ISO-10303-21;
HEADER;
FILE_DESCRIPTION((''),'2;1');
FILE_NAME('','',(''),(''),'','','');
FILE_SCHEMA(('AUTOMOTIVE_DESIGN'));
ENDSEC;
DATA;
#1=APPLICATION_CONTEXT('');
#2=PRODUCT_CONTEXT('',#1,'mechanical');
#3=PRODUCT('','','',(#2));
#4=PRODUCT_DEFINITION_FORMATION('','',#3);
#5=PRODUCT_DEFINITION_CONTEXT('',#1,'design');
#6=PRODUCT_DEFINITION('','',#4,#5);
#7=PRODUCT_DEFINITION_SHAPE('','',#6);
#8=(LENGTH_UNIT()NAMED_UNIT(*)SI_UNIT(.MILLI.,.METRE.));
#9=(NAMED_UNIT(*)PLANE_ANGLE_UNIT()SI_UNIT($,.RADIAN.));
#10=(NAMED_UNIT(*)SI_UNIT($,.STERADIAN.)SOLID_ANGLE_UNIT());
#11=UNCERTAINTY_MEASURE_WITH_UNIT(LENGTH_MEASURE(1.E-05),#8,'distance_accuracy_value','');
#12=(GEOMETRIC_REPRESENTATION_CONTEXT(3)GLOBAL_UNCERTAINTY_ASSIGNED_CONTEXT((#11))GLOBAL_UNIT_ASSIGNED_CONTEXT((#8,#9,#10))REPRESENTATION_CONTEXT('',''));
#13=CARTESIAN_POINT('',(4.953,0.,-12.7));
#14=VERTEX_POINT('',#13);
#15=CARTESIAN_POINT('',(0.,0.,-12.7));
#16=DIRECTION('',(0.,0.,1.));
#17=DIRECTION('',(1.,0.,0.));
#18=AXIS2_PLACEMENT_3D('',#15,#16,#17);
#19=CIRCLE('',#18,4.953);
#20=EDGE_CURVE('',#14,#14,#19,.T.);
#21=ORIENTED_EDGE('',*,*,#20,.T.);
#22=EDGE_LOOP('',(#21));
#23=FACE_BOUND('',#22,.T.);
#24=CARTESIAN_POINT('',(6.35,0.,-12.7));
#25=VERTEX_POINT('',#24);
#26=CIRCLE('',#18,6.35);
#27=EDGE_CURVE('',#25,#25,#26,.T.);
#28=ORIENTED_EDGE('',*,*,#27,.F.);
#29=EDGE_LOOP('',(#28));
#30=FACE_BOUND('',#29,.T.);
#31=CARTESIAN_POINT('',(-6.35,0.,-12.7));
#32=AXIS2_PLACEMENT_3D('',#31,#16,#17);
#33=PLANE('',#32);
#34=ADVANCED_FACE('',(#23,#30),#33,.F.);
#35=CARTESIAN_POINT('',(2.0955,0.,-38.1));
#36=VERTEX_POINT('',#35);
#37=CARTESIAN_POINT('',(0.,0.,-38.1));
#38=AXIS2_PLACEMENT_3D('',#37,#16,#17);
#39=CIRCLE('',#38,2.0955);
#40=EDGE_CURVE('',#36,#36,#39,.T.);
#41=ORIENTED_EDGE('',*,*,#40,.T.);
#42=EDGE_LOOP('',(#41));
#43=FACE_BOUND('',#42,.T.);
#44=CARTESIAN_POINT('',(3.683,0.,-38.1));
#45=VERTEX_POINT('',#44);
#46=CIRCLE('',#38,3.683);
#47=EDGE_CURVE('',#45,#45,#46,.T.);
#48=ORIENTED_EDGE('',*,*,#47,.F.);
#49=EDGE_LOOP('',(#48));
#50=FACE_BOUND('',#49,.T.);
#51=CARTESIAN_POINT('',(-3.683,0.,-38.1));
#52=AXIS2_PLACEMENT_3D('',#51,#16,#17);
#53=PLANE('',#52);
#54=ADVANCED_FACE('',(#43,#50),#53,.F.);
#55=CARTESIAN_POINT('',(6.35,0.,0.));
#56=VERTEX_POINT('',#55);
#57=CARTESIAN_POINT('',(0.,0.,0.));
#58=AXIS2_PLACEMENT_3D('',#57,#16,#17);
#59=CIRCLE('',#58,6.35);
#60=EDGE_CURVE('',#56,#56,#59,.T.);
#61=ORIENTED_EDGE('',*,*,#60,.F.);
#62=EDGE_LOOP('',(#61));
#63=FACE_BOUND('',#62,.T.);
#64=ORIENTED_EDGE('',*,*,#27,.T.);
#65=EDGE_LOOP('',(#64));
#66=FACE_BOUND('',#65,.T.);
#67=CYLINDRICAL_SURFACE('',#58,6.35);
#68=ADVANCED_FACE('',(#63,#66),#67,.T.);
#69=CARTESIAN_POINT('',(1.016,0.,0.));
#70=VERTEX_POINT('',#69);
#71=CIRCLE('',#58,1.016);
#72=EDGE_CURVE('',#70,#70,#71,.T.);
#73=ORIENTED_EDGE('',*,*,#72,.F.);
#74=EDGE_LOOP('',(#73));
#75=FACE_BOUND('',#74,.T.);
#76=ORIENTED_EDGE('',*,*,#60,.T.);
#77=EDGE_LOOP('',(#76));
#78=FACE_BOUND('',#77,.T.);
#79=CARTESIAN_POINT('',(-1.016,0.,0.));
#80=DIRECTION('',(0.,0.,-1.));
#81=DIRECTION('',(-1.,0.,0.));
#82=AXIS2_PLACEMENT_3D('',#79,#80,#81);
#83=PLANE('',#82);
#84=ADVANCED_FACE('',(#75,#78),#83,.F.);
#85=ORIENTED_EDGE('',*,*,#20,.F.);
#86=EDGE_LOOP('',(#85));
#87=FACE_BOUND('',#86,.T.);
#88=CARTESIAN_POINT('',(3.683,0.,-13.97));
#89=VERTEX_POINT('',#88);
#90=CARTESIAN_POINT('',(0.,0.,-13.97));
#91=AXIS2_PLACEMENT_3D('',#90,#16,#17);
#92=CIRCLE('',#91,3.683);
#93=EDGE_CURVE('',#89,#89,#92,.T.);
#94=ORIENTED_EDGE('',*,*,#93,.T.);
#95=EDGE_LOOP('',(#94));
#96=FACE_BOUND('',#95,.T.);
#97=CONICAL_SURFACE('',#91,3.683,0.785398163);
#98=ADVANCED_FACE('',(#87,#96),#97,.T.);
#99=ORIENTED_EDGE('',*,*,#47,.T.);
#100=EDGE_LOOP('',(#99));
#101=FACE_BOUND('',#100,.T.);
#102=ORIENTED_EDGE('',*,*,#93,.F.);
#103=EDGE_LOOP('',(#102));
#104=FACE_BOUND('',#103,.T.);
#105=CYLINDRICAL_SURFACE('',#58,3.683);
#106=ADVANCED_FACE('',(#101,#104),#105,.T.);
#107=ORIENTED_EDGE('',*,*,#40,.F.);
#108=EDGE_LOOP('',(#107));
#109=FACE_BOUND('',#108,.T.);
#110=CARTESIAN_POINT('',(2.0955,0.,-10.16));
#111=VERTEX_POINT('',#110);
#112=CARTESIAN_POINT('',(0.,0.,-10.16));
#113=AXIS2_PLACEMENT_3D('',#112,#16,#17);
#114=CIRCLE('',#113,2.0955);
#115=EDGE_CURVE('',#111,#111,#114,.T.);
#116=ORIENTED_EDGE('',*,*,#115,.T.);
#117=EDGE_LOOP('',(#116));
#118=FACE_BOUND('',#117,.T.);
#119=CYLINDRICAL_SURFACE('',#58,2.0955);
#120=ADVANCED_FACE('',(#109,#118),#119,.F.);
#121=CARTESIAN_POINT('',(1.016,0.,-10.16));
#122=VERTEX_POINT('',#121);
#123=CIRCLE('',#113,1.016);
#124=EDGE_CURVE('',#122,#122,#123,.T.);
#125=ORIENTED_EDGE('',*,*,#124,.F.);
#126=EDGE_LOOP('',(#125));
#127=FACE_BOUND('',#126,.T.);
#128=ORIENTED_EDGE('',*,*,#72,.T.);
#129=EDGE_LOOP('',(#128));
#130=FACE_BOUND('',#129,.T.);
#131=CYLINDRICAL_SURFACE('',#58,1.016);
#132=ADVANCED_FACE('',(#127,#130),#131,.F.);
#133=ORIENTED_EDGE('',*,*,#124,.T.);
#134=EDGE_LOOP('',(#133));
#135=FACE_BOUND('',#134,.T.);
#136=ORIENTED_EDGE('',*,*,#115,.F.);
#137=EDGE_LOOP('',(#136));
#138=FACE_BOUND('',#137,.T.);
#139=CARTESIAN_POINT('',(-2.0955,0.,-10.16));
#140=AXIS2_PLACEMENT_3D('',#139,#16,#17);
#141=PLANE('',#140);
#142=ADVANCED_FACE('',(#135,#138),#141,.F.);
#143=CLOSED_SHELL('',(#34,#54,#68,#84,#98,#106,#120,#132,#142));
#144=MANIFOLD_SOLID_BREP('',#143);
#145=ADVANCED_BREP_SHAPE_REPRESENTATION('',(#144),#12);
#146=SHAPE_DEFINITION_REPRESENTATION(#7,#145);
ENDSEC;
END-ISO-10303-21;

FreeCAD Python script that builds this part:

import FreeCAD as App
import Part
import Sketcher
Q = App.Units.Quantity

doc = App.newDocument("Part")
body = doc.addObject("PartDesign::Body", "Body")

# Sketch on XZ plane
sketch1 = doc.addObject("Sketcher::SketchObject", "Sketch")
body.addObject(sketch1)
sketch1.AttachmentSupport = (doc.XZ_Plane, [""])
sketch1.MapMode = "FlatFace"
sketch1.addGeometry([
    Part.LineSegment(App.Vector(-6.3, 0, 0), App.Vector(-1, 0, 0)),  # 0
    Part.LineSegment(App.Vector(-1, 0, 0), App.Vector(-1, -10.2, 0)),  # 1
    Part.LineSegment(App.Vector(-1, -10.2, 0), App.Vector(-2.1, -10.2, 0)),  # 2
    Part.LineSegment(App.Vector(-2.1, -10.2, 0), App.Vector(-2.1, -38.1, 0)),  # 3
    Part.LineSegment(App.Vector(-2.1, -38.1, 0), App.Vector(-3.7, -38.1, 0)),  # 4
    Part.LineSegment(App.Vector(-3.7, -38.1, 0), App.Vector(-3.7, -14, 0)),  # 5
    Part.LineSegment(App.Vector(-3.7, -14, 0), App.Vector(-5, -12.7, 0)),  # 6
    Part.LineSegment(App.Vector(-5, -12.7, 0), App.Vector(-6.3, -12.7, 0)),  # 7
    Part.LineSegment(App.Vector(-6.3, -12.7, 0), App.Vector(-6.3, 0, 0)),  # 8
], False)
sketch1.addConstraint([
    Sketcher.Constraint("Coincident", 0, 2, 1, 1),
    Sketcher.Constraint("Coincident", 1, 2, 2, 1),
    Sketcher.Constraint("Coincident", 2, 2, 3, 1),
    Sketcher.Constraint("Coincident", 3, 2, 4, 1),
    Sketcher.Constraint("Coincident", 4, 2, 5, 1),
    Sketcher.Constraint("Coincident", 5, 2, 6, 1),
    Sketcher.Constraint("Coincident", 6, 2, 7, 1),
    Sketcher.Constraint("Coincident", 7, 2, 8, 1),
    Sketcher.Constraint("Coincident", 8, 2, 0, 1),
    Sketcher.Constraint("Horizontal", 0),
    Sketcher.Constraint("Vertical", 1),
    Sketcher.Constraint("Horizontal", 2),
    Sketcher.Constraint("Vertical", 3),
    Sketcher.Constraint("Horizontal", 4),
    Sketcher.Constraint("Vertical", 5),
    Sketcher.Constraint("Horizontal", 7),
    Sketcher.Constraint("Vertical", 8),
    Sketcher.Constraint("PointOnObject", 0, 2, -1),
    Sketcher.Constraint("DistanceY", 1, 2, 1, 1, Q("0.4 in")),
    Sketcher.Constraint("DistanceY", 3, 2, 3, 1, Q("1.1 in")),
    Sketcher.Constraint("DistanceY", 8, 1, 8, 2, Q("0.5 in")),
    Sketcher.Constraint("Angle", 6, Q("135 deg")),
    Sketcher.Constraint("DistanceX", 0, 1, 0, 2, Q("0.21 in")),
    Sketcher.Constraint("DistanceY", 5, 1, 5, 2, Q("0.95 in")),
    Sketcher.Constraint("DistanceX", 4, 2, 4, 1, Q("0.0625 in")),
    Sketcher.Constraint("DistanceX", 7, 2, 7, 1, Q("0.055 in")),
    Sketcher.Constraint("DistanceX", 0, 2, -1, 1, Q("0.04 in")),
])
revolution = doc.addObject("PartDesign::Revolution", "Revolution")
body.addObject(revolution)
revolution.Profile = sketch1
revolution.ReferenceAxis = (sketch1, ["V_Axis"])
revolution.Angle = 360

doc.recompute()
